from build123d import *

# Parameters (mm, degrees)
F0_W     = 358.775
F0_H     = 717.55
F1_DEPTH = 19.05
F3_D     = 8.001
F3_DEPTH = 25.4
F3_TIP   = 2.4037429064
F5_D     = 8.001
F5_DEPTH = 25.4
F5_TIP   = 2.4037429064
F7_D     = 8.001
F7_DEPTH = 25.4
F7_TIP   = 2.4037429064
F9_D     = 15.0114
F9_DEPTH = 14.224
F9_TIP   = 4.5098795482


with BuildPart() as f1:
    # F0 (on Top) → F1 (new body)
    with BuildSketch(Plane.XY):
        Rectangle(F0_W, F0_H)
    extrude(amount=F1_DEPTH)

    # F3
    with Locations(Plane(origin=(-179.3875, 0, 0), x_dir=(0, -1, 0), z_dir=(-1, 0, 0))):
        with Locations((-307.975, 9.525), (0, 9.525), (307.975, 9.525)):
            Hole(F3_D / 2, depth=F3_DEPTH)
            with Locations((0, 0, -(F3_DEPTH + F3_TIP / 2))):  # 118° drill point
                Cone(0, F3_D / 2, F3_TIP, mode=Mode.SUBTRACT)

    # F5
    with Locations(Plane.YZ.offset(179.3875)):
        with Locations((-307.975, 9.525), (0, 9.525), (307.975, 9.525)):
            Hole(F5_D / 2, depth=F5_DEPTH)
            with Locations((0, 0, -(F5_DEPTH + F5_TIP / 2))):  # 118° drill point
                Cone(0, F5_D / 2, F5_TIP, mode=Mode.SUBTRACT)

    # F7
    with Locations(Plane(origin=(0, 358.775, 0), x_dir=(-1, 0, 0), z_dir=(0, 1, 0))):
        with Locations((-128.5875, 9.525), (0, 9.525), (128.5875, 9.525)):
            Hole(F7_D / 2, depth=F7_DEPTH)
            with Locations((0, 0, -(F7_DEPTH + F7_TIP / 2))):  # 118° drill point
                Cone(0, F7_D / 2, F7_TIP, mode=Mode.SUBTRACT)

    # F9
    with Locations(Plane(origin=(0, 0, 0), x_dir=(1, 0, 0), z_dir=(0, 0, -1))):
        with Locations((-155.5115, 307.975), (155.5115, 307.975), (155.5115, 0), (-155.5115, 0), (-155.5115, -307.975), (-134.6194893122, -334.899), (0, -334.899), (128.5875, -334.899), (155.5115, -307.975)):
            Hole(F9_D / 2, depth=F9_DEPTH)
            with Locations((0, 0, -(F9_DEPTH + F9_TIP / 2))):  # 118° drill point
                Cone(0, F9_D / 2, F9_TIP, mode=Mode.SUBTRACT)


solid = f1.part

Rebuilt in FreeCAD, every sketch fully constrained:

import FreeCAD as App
import Part
import Sketcher

V = App.Vector
Q = App.Units.Quantity


def add_polygon(sketch, points):
    """Adds a closed chain of lines whose ends are joined by coincident constraints."""
    first, n = sketch.GeometryCount, len(points)
    for a, b in zip(points, points[1:] + points[:1]):
        sketch.addGeometry(Part.LineSegment(App.Vector(*a, 0), App.Vector(*b, 0)), False)
    for i in range(n):
        sketch.addConstraint(Sketcher.Constraint("Coincident", first + i, 2, first + (i + 1) % n, 1))

doc = App.newDocument("Part")
body = doc.addObject("PartDesign::Body", "Body")

# Sketch on XY plane
sketch1 = body.newObject("Sketcher::SketchObject", "Sketch")
sketch1.AttachmentSupport = (doc.getObject("XY_Plane"), [""])
sketch1.MapMode = "FlatFace"
add_polygon(sketch1, [(-179, 359), (-179, -359), (179, -359), (179, 359)])  # lines 0-3
sketch1.addConstraint(Sketcher.Constraint("Vertical", 0))
sketch1.addConstraint(Sketcher.Constraint("Horizontal", 1))
sketch1.addConstraint(Sketcher.Constraint("Vertical", 2))
sketch1.addConstraint(Sketcher.Constraint("Horizontal", 3))
sketch1.addConstraint(Sketcher.Constraint("Symmetric", 0, 2, 2, 2, -1, 1))
sketch1.addConstraint(Sketcher.Constraint("DistanceY", 0, 2, 0, 1, Q("28.25 in")))
sketch1.addConstraint(Sketcher.Constraint("DistanceX", 1, 1, 1, 2, Q("14.125 in")))
pad1 = body.newObject("PartDesign::Pad", "Pad")
pad1.Profile = sketch1
pad1.Length = Q("0.75 in")

# Sketch on YZ plane
sketch2 = body.newObject("Sketcher::SketchObject", "Sketch001")
sketch2.AttachmentSupport = (doc.getObject("YZ_Plane"), [""])
sketch2.MapMode = "FlatFace"
sketch2.AttachmentOffset = App.Placement(V(0, 0, -7.0625 * 25.4), App.Rotation())
sketch2.addGeometry(Part.Circle(V(308, 9.5, 0), V(0, 0, 1), 4), False)
sketch2.addGeometry(Part.Circle(V(0, 9.5, 0), V(0, 0, 1), 4), False)
sketch2.addGeometry(Part.Circle(V(-308, 9.5, 0), V(0, 0, 1), 4), False)
sketch2.addConstraint(Sketcher.Constraint("Equal", 0, 1))
sketch2.addConstraint(Sketcher.Constraint("Equal", 1, 2))
sketch2.addConstraint(Sketcher.Constraint("Symmetric", 0, 3, 2, 3, -2))
sketch2.addConstraint(Sketcher.Constraint("PointOnObject", 1, 3, -2))
sketch2.addConstraint(Sketcher.Constraint("Horizontal", 0, 3, 1, 3))
sketch2.addConstraint(Sketcher.Constraint("Diameter", 0, Q("0.315 in")))
sketch2.addConstraint(Sketcher.Constraint("DistanceX", 2, 3, 0, 3, Q("24.25 in")))
sketch2.addConstraint(Sketcher.Constraint("DistanceY", -1, 1, 0, 3, Q("0.375 in")))
doc.recompute()
hole = body.newObject("PartDesign::Hole", "Hole")
hole.Profile = sketch2
hole.ThreadType = "None"
hole.Diameter = Q("0.315 in")
hole.DepthType = "Dimension"
hole.Depth = Q("1 in")
hole.DrillPoint = "Angled"
hole.DrillPointAngle = 118
hole.Reversed = True

# Sketch on YZ plane
sketch3 = body.newObject("Sketcher::SketchObject", "Sketch002")
sketch3.AttachmentSupport = (doc.getObject("YZ_Plane"), [""])
sketch3.MapMode = "FlatFace"
sketch3.AttachmentOffset = App.Placement(V(0, 0, 7.0625 * 25.4), App.Rotation())
sketch3.addGeometry(Part.Circle(V(-308, 9.5, 0), V(0, 0, 1), 4), False)
sketch3.addGeometry(Part.Circle(V(0, 9.5, 0), V(0, 0, 1), 4), False)
sketch3.addGeometry(Part.Circle(V(308, 9.5, 0), V(0, 0, 1), 4), False)
sketch3.addConstraint(Sketcher.Constraint("Equal", 0, 1))
sketch3.addConstraint(Sketcher.Constraint("Equal", 1, 2))
sketch3.addConstraint(Sketcher.Constraint("Symmetric", 0, 3, 2, 3, -2))
sketch3.addConstraint(Sketcher.Constraint("PointOnObject", 1, 3, -2))
sketch3.addConstraint(Sketcher.Constraint("Horizontal", 0, 3, 1, 3))
sketch3.addConstraint(Sketcher.Constraint("Diameter", 0, Q("0.315 in")))
sketch3.addConstraint(Sketcher.Constraint("DistanceX", 0, 3, 2, 3, Q("24.25 in")))
sketch3.addConstraint(Sketcher.Constraint("DistanceY", -1, 1, 0, 3, Q("0.375 in")))
doc.recompute()
hole2 = body.newObject("PartDesign::Hole", "Hole001")
hole2.Profile = sketch3
hole2.ThreadType = "None"
hole2.Diameter = Q("0.315 in")
hole2.DepthType = "Dimension"
hole2.Depth = Q("1 in")
hole2.DrillPoint = "Angled"
hole2.DrillPointAngle = 118

# Sketch on XZ plane
sketch4 = body.newObject("Sketcher::SketchObject", "Sketch003")
sketch4.AttachmentSupport = (doc.getObject("XZ_Plane"), [""])
sketch4.MapMode = "FlatFace"
sketch4.AttachmentOffset = App.Placement(V(0, 0, -14.125 * 25.4), App.Rotation())
sketch4.addGeometry(Part.Circle(V(128.6, 9.5, 0), V(0, 0, 1), 4), False)
sketch4.addGeometry(Part.Circle(V(0, 9.5, 0), V(0, 0, 1), 4), False)
sketch4.addGeometry(Part.Circle(V(-128.6, 9.5, 0), V(0, 0, 1), 4), False)
sketch4.addConstraint(Sketcher.Constraint("Equal", 0, 1))
sketch4.addConstraint(Sketcher.Constraint("Equal", 1, 2))
sketch4.addConstraint(Sketcher.Constraint("Symmetric", 0, 3, 2, 3, -2))
sketch4.addConstraint(Sketcher.Constraint("PointOnObject", 1, 3, -2))
sketch4.addConstraint(Sketcher.Constraint("Horizontal", 0, 3, 1, 3))
sketch4.addConstraint(Sketcher.Constraint("Diameter", 0, Q("0.315 in")))
sketch4.addConstraint(Sketcher.Constraint("DistanceX", -1, 1, 0, 3, Q("5.0625 in")))
sketch4.addConstraint(Sketcher.Constraint("DistanceY", -1, 1, 0, 3, Q("0.375 in")))
doc.recompute()
hole3 = body.newObject("PartDesign::Hole", "Hole002")
hole3.Profile = sketch4
hole3.ThreadType = "None"
hole3.Diameter = Q("0.315 in")
hole3.DepthType = "Dimension"
hole3.Depth = Q("1 in")
hole3.DrillPoint = "Angled"
hole3.DrillPointAngle = 118
hole3.Reversed = True

# Sketch on XY plane
sketch5 = body.newObject("Sketcher::SketchObject", "Sketch004")
sketch5.AttachmentSupport = (doc.getObject("XY_Plane"), [""])
sketch5.MapMode = "FlatFace"
sketch5.addGeometry(Part.Circle(V(-156, -308, 0), V(0, 0, 1), 8), False)
sketch5.addGeometry(Part.Circle(V(156, -308, 0), V(0, 0, 1), 8), False)
sketch5.addGeometry(Part.Circle(V(156, 0, 0), V(0, 0, 1), 8), False)
sketch5.addGeometry(Part.Circle(V(-156, 0, 0), V(0, 0, 1), 8), False)
sketch5.addGeometry(Part.Circle(V(-156, 308, 0), V(0, 0, 1), 8), False)
sketch5.addGeometry(Part.Circle(V(-135, 335, 0), V(0, 0, 1), 8), False)
sketch5.addGeometry(Part.Circle(V(0, 335, 0), V(0, 0, 1), 8), False)
sketch5.addGeometry(Part.Circle(V(129, 335, 0), V(0, 0, 1), 8), False)
sketch5.addGeometry(Part.Circle(V(156, 308, 0), V(0, 0, 1), 8), False)
sketch5.addConstraint(Sketcher.Constraint("Equal", 0, 1))
sketch5.addConstraint(Sketcher.Constraint("Equal", 1, 2))
sketch5.addConstraint(Sketcher.Constraint("Equal", 2, 3))
sketch5.addConstraint(Sketcher.Constraint("Equal", 3, 4))
sketch5.addConstraint(Sketcher.Constraint("Equal", 4, 5))
sketch5.addConstraint(Sketcher.Constraint("Equal", 5, 6))
sketch5.addConstraint(Sketcher.Constraint("Equal", 6, 7))
sketch5.addConstraint(Sketcher.Constraint("Equal", 7, 8))
sketch5.addConstraint(Sketcher.Constraint("Symmetric", 2, 3, 3, 3, -1, 1))
sketch5.addConstraint(Sketcher.Constraint("Symmetric", 1, 3, 4, 3, -1, 1))
sketch5.addConstraint(Sketcher.Constraint("Symmetric", 0, 3, 8, 3, -1, 1))
sketch5.addConstraint(Sketcher.Constraint("Symmetric", 0, 3, 1, 3, -2))
sketch5.addConstraint(Sketcher.Constraint("PointOnObject", 2, 3, -1))
sketch5.addConstraint(Sketcher.Constraint("PointOnObject", 6, 3, -2))
sketch5.addConstraint(Sketcher.Constraint("Horizontal", 5, 3, 6, 3))
sketch5.addConstraint(Sketcher.Constraint("Horizontal", 6, 3, 7, 3))
sketch5.addConstraint(Sketcher.Constraint("Vertical", 1, 3, 2, 3))
sketch5.addConstraint(Sketcher.Constraint("Diameter", 0, Q("0.591 in")))
sketch5.addConstraint(Sketcher.Constraint("DistanceY", 0, 3, 4, 3, Q("24.25 in")))
sketch5.addConstraint(Sketcher.Constraint("DistanceY", 4, 3, 5, 3, Q("1.06 in")))
sketch5.addConstraint(Sketcher.Constraint("DistanceX", 7, 3, 2, 3, Q("1.06 in")))
sketch5.addConstraint(Sketcher.Constraint("DistanceX", -1, 1, 7, 3, Q("5.0625 in")))
sketch5.addConstraint(Sketcher.Constraint("DistanceX", 5, 3, -1, 1, 134.619489))
doc.recompute()
hole4 = body.newObject("PartDesign::Hole", "Hole003")
hole4.Profile = sketch5
hole4.ThreadType = "None"
hole4.Diameter = Q("0.591 in")
hole4.DepthType = "Dimension"
hole4.Depth = Q("0.56 in")
hole4.DrillPoint = "Angled"
hole4.DrillPointAngle = 118
hole4.Reversed = True

doc.recompute()
